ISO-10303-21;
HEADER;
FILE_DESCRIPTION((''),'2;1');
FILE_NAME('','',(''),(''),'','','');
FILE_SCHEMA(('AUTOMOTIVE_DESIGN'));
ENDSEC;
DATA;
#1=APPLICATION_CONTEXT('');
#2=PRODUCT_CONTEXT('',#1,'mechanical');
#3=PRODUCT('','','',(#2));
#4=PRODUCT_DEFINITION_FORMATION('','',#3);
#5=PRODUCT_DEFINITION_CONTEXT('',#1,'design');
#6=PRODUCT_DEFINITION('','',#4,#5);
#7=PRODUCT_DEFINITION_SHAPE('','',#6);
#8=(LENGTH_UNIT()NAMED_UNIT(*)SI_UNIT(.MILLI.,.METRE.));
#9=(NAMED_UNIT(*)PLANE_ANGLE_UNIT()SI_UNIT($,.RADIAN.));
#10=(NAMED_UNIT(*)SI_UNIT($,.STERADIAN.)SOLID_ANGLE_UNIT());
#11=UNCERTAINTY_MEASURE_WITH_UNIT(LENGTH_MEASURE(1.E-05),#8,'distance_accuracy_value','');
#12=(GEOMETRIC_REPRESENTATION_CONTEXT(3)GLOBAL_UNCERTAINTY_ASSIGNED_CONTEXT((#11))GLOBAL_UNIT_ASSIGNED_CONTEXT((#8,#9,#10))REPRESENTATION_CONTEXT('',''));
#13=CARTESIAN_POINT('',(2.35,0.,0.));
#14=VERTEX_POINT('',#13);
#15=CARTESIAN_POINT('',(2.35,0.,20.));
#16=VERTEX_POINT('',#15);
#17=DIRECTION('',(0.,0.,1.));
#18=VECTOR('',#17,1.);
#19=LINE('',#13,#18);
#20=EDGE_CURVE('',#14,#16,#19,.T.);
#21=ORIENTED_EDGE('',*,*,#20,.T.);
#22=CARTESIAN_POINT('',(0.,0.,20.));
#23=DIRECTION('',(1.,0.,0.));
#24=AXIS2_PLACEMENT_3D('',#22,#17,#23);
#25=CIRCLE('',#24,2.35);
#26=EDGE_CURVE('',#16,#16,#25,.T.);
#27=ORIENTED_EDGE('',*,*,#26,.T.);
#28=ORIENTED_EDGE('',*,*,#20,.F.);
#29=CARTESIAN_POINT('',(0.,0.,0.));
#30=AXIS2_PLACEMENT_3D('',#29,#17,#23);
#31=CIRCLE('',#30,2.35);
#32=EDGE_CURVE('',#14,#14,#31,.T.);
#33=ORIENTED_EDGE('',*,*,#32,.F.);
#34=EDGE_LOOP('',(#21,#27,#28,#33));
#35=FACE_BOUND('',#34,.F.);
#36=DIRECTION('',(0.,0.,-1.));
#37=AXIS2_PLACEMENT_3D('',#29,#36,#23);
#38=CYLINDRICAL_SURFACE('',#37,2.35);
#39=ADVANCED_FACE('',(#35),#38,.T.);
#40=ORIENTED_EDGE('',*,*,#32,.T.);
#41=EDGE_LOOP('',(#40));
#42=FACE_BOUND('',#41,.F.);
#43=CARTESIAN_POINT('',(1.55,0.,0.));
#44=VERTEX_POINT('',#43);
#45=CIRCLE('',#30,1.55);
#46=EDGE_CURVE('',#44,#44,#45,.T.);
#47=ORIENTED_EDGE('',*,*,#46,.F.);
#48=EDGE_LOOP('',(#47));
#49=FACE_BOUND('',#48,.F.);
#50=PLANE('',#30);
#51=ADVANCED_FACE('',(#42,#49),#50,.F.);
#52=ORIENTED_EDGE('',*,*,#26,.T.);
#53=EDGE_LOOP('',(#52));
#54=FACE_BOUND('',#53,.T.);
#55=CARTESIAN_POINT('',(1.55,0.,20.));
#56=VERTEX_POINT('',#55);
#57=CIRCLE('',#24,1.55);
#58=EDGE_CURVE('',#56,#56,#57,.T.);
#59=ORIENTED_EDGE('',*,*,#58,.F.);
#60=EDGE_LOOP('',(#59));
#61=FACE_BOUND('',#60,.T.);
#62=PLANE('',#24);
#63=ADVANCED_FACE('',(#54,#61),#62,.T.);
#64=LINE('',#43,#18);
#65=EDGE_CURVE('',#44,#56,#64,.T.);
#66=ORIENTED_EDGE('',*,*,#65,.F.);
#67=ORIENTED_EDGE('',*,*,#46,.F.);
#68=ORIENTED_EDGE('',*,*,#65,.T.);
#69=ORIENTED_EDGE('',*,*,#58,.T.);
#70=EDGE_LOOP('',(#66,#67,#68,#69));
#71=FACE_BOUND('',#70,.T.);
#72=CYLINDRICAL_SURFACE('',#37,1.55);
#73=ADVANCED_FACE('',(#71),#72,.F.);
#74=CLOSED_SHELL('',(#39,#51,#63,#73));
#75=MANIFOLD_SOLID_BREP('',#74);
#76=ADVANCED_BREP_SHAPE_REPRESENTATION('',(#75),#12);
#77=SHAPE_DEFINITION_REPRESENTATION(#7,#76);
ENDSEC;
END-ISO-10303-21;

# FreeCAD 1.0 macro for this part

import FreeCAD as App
import Part
import Sketcher
Q = App.Units.Quantity

doc = App.newDocument("Part")
body = doc.addObject("PartDesign::Body", "Body")

# Sketch on XY plane
sketch1 = body.newObject("Sketcher::SketchObject", "Sketch")
sketch1.AttachmentSupport = (doc.getObject("XY_Plane"), [""])
sketch1.MapMode = "FlatFace"
sketch1.addGeometry([
    Part.Circle(App.Vector(0, 0, 0), App.Vector(0, 0, 1), 2.4),
    Part.Circle(App.Vector(0, 0, 0), App.Vector(0, 0, 1), 1.6),
], False)
sketch1.addConstraint([
    Sketcher.Constraint("Coincident", 0, 3, -1, 1),
    Sketcher.Constraint("Coincident", 1, 3, -1, 1),
    Sketcher.Constraint("Diameter", 1, Q("3.1 mm")),
    Sketcher.Constraint("Diameter", 0, Q("4.7 mm")),
])
pad1 = body.newObject("PartDesign::Pad", "Pad")
pad1.Profile = sketch1
pad1.Length = 20

doc.recompute()
